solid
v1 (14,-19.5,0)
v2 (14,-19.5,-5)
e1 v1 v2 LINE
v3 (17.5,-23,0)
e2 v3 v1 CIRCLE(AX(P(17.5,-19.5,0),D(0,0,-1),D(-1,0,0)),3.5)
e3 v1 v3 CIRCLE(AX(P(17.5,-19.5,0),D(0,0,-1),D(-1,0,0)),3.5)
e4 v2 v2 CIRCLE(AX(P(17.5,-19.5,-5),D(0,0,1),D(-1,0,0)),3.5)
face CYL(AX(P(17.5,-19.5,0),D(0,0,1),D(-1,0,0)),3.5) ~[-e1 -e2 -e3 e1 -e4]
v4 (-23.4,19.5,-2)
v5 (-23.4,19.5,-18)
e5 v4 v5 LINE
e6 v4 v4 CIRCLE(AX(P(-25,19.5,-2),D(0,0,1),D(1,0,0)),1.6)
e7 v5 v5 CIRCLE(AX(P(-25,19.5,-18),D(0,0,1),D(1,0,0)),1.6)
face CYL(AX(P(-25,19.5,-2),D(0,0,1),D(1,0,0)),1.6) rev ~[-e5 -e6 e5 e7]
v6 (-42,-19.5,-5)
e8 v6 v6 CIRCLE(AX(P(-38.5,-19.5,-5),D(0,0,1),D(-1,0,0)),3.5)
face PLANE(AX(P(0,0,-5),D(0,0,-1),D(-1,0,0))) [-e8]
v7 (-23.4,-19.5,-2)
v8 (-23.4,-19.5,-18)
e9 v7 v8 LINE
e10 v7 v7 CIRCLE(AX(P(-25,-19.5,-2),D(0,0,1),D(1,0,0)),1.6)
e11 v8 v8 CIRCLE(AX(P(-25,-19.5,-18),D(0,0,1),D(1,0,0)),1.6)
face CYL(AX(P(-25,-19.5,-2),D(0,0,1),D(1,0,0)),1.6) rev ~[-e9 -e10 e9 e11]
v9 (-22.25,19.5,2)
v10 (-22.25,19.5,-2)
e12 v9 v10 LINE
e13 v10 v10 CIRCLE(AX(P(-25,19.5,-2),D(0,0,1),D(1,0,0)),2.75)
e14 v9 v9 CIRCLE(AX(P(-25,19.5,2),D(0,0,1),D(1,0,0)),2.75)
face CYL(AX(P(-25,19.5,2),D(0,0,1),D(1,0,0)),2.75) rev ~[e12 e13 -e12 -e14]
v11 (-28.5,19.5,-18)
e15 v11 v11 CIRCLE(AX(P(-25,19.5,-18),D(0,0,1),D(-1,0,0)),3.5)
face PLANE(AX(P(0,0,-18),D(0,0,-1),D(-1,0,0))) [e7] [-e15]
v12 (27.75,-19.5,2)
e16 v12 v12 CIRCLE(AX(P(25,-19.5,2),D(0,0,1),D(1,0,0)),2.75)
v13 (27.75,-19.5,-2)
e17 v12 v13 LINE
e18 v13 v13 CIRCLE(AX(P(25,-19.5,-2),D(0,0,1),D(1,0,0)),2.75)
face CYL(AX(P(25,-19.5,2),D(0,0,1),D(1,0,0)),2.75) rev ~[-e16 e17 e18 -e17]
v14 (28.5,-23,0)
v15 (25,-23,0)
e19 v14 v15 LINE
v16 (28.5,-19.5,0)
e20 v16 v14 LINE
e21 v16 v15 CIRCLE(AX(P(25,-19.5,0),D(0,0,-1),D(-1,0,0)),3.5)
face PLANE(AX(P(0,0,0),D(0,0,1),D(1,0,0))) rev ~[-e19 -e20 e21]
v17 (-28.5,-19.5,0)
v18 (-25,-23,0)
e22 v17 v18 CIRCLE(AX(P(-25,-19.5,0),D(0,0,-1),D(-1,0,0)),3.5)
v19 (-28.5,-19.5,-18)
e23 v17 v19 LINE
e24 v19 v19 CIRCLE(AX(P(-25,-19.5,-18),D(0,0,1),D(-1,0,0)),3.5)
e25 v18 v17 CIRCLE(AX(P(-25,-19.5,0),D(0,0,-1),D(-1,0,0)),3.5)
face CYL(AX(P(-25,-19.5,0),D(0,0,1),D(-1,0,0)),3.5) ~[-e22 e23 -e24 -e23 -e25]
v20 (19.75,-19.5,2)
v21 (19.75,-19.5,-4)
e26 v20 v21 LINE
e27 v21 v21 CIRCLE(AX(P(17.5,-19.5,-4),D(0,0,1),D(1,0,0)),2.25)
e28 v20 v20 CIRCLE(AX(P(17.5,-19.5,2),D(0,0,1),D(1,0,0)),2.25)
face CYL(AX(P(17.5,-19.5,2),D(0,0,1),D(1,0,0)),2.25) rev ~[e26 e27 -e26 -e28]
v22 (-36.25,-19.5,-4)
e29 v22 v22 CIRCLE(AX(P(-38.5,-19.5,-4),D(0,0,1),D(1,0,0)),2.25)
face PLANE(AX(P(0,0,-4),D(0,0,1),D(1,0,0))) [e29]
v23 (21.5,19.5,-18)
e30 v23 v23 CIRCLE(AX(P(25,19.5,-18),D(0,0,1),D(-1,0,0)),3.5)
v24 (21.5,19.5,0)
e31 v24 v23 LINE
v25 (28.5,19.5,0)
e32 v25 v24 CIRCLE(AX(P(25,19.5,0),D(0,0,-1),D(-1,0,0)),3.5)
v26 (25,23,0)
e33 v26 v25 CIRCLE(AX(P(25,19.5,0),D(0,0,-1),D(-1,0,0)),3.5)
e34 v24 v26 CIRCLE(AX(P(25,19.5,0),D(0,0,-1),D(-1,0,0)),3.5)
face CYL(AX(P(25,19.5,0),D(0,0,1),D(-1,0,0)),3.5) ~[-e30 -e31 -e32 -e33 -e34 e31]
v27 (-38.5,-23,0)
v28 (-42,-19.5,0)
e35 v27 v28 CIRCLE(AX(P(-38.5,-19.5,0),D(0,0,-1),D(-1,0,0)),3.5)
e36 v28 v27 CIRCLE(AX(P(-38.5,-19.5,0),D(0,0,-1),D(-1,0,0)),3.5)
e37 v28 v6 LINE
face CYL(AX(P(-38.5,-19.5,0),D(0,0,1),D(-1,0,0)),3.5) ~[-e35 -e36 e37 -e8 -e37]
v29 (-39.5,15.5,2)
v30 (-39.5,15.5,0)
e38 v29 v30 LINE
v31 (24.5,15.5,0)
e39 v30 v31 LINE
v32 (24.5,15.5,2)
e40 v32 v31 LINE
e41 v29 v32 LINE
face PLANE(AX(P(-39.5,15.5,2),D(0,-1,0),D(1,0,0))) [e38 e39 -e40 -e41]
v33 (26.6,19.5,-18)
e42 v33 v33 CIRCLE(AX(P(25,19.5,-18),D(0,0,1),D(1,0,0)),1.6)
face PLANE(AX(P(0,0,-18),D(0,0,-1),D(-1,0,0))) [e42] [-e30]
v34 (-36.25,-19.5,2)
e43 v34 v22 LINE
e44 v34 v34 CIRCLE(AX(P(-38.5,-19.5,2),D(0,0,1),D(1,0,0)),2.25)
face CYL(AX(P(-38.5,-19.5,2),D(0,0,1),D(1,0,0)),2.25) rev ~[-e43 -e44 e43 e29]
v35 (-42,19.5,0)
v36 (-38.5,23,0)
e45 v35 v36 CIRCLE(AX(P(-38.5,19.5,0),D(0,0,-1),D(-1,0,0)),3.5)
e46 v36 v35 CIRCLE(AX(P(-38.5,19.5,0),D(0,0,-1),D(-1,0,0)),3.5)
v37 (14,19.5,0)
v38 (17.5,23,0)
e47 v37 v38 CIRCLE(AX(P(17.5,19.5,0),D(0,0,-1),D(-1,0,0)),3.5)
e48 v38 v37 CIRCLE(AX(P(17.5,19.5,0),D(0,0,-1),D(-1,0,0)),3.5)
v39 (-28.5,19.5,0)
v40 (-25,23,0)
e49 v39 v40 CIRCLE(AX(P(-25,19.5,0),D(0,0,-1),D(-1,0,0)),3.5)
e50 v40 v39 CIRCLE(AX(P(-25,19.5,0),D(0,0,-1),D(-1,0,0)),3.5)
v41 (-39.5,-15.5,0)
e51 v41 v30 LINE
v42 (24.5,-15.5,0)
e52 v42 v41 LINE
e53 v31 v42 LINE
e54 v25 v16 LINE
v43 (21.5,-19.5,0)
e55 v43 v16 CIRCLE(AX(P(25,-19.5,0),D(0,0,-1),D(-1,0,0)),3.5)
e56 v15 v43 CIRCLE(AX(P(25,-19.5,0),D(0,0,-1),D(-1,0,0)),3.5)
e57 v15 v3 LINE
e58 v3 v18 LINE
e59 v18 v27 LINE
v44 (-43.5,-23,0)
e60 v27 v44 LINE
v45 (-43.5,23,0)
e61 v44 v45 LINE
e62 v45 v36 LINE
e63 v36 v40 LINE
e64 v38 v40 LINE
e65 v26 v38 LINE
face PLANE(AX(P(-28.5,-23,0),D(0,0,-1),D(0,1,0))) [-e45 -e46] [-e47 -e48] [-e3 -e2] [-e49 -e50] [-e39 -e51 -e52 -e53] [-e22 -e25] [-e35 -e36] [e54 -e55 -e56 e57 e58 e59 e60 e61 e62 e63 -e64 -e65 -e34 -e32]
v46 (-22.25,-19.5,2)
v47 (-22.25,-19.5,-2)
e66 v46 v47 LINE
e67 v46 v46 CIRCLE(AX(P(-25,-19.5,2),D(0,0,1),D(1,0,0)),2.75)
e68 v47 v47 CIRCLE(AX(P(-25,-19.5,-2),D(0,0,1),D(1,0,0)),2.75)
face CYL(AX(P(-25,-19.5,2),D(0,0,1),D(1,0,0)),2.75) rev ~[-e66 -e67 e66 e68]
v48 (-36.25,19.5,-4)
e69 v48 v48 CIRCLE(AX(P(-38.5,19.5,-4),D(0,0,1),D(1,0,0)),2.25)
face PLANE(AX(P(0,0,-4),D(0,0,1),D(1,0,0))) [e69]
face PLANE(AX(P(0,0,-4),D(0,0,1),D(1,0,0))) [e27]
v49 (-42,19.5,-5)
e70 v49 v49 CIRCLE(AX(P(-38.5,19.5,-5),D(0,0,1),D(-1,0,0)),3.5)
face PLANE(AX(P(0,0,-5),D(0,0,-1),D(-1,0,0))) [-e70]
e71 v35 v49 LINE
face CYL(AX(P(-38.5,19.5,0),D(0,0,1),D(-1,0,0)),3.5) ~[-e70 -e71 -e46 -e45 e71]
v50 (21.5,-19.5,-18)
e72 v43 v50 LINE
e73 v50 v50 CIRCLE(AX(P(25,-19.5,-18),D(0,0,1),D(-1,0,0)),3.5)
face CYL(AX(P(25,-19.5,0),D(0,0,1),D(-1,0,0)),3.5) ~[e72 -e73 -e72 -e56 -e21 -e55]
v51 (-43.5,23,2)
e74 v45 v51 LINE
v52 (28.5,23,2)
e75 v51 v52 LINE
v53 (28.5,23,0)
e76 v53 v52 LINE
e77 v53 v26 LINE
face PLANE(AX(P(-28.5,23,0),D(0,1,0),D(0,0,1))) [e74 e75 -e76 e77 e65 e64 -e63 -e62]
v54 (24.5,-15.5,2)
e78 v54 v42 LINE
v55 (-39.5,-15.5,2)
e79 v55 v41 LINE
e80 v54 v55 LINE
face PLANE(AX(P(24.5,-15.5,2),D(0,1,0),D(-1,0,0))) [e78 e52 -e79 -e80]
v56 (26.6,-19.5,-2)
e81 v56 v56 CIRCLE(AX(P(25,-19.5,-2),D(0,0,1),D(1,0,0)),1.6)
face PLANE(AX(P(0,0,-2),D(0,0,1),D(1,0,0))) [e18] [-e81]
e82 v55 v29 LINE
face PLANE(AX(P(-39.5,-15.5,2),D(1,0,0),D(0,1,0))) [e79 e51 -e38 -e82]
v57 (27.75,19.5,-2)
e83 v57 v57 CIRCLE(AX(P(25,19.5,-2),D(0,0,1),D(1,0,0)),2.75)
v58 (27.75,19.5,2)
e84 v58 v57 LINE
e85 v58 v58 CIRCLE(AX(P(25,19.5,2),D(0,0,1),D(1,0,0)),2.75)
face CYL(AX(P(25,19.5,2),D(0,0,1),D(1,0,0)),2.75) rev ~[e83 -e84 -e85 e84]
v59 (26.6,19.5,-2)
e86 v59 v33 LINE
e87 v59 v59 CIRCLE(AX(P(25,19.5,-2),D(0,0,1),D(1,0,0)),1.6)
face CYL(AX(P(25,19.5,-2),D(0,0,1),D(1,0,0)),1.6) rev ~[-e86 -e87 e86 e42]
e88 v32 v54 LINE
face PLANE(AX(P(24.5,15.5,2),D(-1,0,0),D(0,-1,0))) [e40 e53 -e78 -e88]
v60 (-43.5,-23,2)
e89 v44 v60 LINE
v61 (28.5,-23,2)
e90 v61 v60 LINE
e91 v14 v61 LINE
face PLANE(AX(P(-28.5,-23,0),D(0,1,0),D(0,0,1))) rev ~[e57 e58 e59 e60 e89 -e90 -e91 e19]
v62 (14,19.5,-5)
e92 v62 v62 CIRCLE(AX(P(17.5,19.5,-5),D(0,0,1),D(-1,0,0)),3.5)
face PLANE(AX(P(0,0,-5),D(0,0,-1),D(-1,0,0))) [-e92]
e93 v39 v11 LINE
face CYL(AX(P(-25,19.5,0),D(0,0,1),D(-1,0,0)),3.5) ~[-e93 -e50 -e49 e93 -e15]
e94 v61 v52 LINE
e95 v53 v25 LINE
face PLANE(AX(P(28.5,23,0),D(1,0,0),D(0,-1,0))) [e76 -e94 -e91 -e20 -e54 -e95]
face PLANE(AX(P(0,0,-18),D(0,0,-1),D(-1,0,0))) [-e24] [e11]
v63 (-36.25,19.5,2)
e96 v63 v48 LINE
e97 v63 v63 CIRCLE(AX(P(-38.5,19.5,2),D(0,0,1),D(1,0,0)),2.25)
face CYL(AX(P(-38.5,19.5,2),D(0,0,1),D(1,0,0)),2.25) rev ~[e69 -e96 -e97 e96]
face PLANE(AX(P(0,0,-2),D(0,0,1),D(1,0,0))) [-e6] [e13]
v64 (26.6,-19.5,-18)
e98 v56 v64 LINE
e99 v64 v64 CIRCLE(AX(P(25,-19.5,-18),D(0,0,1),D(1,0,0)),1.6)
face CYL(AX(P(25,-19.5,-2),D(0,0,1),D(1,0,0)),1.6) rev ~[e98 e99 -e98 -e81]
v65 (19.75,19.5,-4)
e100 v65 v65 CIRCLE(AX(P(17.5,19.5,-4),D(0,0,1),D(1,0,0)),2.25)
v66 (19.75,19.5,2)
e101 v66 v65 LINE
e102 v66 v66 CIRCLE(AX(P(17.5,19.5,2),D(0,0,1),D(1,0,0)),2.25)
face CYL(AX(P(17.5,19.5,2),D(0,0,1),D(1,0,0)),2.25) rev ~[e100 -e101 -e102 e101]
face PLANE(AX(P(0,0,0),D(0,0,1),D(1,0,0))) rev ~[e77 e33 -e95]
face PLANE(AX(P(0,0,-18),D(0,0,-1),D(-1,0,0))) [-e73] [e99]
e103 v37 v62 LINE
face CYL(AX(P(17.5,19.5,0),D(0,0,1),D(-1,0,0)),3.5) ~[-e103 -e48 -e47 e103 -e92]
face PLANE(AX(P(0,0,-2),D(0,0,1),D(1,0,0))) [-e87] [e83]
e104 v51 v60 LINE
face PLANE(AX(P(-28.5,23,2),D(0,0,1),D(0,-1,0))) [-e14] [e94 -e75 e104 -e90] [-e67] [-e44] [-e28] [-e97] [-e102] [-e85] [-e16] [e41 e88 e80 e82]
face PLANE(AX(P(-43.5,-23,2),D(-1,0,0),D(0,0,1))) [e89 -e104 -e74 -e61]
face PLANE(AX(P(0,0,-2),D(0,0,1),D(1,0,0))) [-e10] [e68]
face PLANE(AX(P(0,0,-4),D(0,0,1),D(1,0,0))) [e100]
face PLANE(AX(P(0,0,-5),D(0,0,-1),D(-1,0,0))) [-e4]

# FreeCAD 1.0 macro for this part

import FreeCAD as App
import Part
import Sketcher
from FreeCAD import Vector
Q = App.Units.Quantity


def add_polygon(sketch, points):
    """Adds a closed chain of lines whose ends are joined by coincident constraints."""
    first, n = sketch.GeometryCount, len(points)
    for a, b in zip(points, points[1:] + points[:1]):
        sketch.addGeometry(Part.LineSegment(App.Vector(*a, 0), App.Vector(*b, 0)), False)
    for i in range(n):
        sketch.addConstraint(Sketcher.Constraint("Coincident", first + i, 2, first + (i + 1) % n, 1))

doc = App.newDocument("Part")
body = doc.addObject("PartDesign::Body", "Body")

sketch1 = body.newObject("Sketcher::SketchObject", "Sketch")
sketch1.AttachmentSupport = (doc.getObject("XY_Plane"), [""])
sketch1.MapMode = "FlatFace"
add_polygon(sketch1, [(-28, 23), (-28, -23), (28, -23), (28, 23)])
sketch1.addConstraint([
    Sketcher.Constraint("Vertical", 0),
    Sketcher.Constraint("Horizontal", 1),
    Sketcher.Constraint("Vertical", 2),
    Sketcher.Constraint("Horizontal", 3),
    Sketcher.Constraint("Symmetric", 0, 2, 2, 2, -1, 1),
    Sketcher.Constraint("DistanceX", 1, 1, 1, 2, Q("57 mm")),
    Sketcher.Constraint("DistanceY", 0, 2, 0, 1, Q("46 mm")),
])
pad1 = body.newObject("PartDesign::Pad", "Pad")
pad1.Profile = sketch1
pad1.Length = 2

sketch2 = body.newObject("Sketcher::SketchObject", "Sketch001")
sketch2.AttachmentSupport = (doc.getObject("XY_Plane"), [""])
sketch2.MapMode = "FlatFace"
sketch2.addGeometry([
    Part.Circle(Vector(-25, -19.5, 0), Vector(0, 0, 1), 3.5),
    Part.Circle(Vector(-25, 19.5, 0), Vector(0, 0, 1), 3.5),
    Part.Circle(Vector(25, -19.5, 0), Vector(0, 0, 1), 3.5),
    Part.Circle(Vector(25, 19.5, 0), Vector(0, 0, 1), 3.5),
], False)
sketch2.addConstraint([
    Sketcher.Constraint("Equal", 0, 1),
    Sketcher.Constraint("Equal", 1, 2),
    Sketcher.Constraint("Equal", 2, 3),
    Sketcher.Constraint("Symmetric", 1, 3, 2, 3, -1, 1),
    Sketcher.Constraint("Symmetric", 0, 3, 3, 3, -1, 1),
    Sketcher.Constraint("Symmetric", 0, 3, 2, 3, -2),
    Sketcher.Constraint("Diameter", 0, Q("7 mm")),
    Sketcher.Constraint("DistanceX", 0, 3, -1, 1, Q("25 mm")),
    Sketcher.Constraint("DistanceY", 0, 3, 1, 3, Q("39 mm")),
])
pad2 = body.newObject("PartDesign::Pad", "Pad001")
pad2.Profile = sketch2
pad2.Length = 18
pad2.Reversed = True

sketch3 = body.newObject("Sketcher::SketchObject", "Sketch002")
sketch3.AttachmentSupport = (doc.getObject("XY_Plane"), [""])
sketch3.MapMode = "FlatFace"
sketch3.AttachmentOffset = App.Placement(Vector(0, 0, 2), App.Rotation())
sketch3.addGeometry([
    Part.Circle(Vector(-25, 19.5, 0), Vector(0, 0, 1), 2.8),
    Part.Circle(Vector(25, 19.5, 0), Vector(0, 0, 1), 2.8),
    Part.Circle(Vector(-25, -19.5, 0), Vector(0, 0, 1), 2.8),
    Part.Circle(Vector(25, -19.5, 0), Vector(0, 0, 1), 2.8),
], False)
sketch3.addConstraint([
    Sketcher.Constraint("Equal", 0, 1),
    Sketcher.Constraint("Equal", 1, 2),
    Sketcher.Constraint("Equal", 2, 3),
    Sketcher.Constraint("Symmetric", 1, 3, 2, 3, -1, 1),
    Sketcher.Constraint("Symmetric", 0, 3, 3, 3, -1, 1),
    Sketcher.Constraint("Symmetric", 0, 3, 1, 3, -2),
    Sketcher.Constraint("Diameter", 0, Q("5.5 mm")),
    Sketcher.Constraint("DistanceX", 0, 3, -1, 1, Q("25 mm")),
    Sketcher.Constraint("DistanceY", 2, 3, 0, 3, Q("39 mm")),
])
pocket1 = body.newObject("PartDesign::Pocket", "Pocket")
pocket1.Profile = sketch3
pocket1.Length = 4

sketch4 = body.newObject("Sketcher::SketchObject", "Sketch003")
sketch4.AttachmentSupport = (doc.getObject("XY_Plane"), [""])
sketch4.MapMode = "FlatFace"
sketch4.AttachmentOffset = App.Placement(Vector(0, 0, -2), App.Rotation())
sketch4.addGeometry([
    Part.Circle(Vector(-25, 19.5, 0), Vector(0, 0, 1), 1.6),
    Part.Circle(Vector(25, 19.5, 0), Vector(0, 0, 1), 1.6),
    Part.Circle(Vector(25, -19.5, 0), Vector(0, 0, 1), 1.6),
    Part.Circle(Vector(-25, -19.5, 0), Vector(0, 0, 1), 1.6),
], False)
sketch4.addConstraint([
    Sketcher.Constraint("Equal", 0, 1),
    Sketcher.Constraint("Equal", 1, 2),
    Sketcher.Constraint("Equal", 2, 3),
    Sketcher.Constraint("Symmetric", 0, 3, 2, 3, -1, 1),
    Sketcher.Constraint("Symmetric", 1, 3, 3, 3, -1, 1),
    Sketcher.Constraint("Symmetric", 0, 3, 1, 3, -2),
    Sketcher.Constraint("Diameter", 0, Q("3.2 mm")),
    Sketcher.Constraint("DistanceX", 0, 3, -1, 1, Q("25 mm")),
    Sketcher.Constraint("DistanceY", 2, 3, 1, 3, Q("39 mm")),
])
pocket2 = body.newObject("PartDesign::Pocket", "Pocket001")
pocket2.Profile = sketch4
pocket2.Length = 16

sketch5 = body.newObject("Sketcher::SketchObject", "Sketch004")
sketch5.AttachmentSupport = (doc.getObject("YZ_Plane"), [""])
sketch5.MapMode = "FlatFace"
sketch5.AttachmentOffset = App.Placement(Vector(0, 0, -28.5), App.Rotation())
add_polygon(sketch5, [(23, 0), (-23, 0), (-23, 2), (23, 2)])
sketch5.addConstraint([
    Sketcher.Constraint("Horizontal", 0),
    Sketcher.Constraint("Vertical", 1),
    Sketcher.Constraint("Horizontal", 2),
    Sketcher.Constraint("Vertical", 3),
    Sketcher.Constraint("Symmetric", 0, 2, 3, 2, -1, 1),
    Sketcher.Constraint("DistanceX", 0, 2, 0, 1, Q("46 mm")),
    Sketcher.Constraint("DistanceY", 1, 1, 1, 2, Q("2 mm")),
])
pad3 = body.newObject("PartDesign::Pad", "Pad002")
pad3.Profile = sketch5
pad3.Length = 15
pad3.Reversed = True

sketch6 = body.newObject("Sketcher::SketchObject", "Sketch005")
sketch6.AttachmentSupport = (doc.getObject("XY_Plane"), [""])
sketch6.MapMode = "FlatFace"
sketch6.addGeometry([
    Part.Circle(Vector(-38.5, -19.5, 0), Vector(0, 0, 1), 3.5),
    Part.Circle(Vector(-38.5, 19.5, 0), Vector(0, 0, 1), 3.5),
    Part.Circle(Vector(17.5, 19.5, 0), Vector(0, 0, 1), 3.5),
    Part.Circle(Vector(17.5, -19.5, 0), Vector(0, 0, 1), 3.5),
], False)
sketch6.addConstraint([
    Sketcher.Constraint("Equal", 0, 1),
    Sketcher.Constraint("Equal", 1, 2),
    Sketcher.Constraint("Equal", 2, 3),
    Sketcher.Constraint("Symmetric", 0, 3, 1, 3, -1),
    Sketcher.Constraint("Symmetric", 2, 3, 3, 3, -1),
    Sketcher.Constraint("Horizontal", 1, 3, 2, 3),
    Sketcher.Constraint("Diameter", 0, Q("7 mm")),
    Sketcher.Constraint("DistanceY", 0, 3, 1, 3, Q("39 mm")),
    Sketcher.Constraint("DistanceX", 1, 3, 2, 3, Q("56 mm")),
    Sketcher.Constraint("DistanceX", 0, 3, -1, 1, Q("38.5 mm")),
])
pad4 = body.newObject("PartDesign::Pad", "Pad003")
pad4.Profile = sketch6
pad4.Length = 5
pad4.Reversed = True

sketch7 = body.newObject("Sketcher::SketchObject", "Sketch006")
sketch7.AttachmentSupport = (doc.getObject("XY_Plane"), [""])
sketch7.MapMode = "FlatFace"
sketch7.AttachmentOffset = App.Placement(Vector(0, 0, 2), App.Rotation())
sketch7.addGeometry([
    Part.Circle(Vector(17.5, -19.5, 0), Vector(0, 0, 1), 2.2),
    Part.Circle(Vector(17.5, 19.5, 0), Vector(0, 0, 1), 2.2),
    Part.Circle(Vector(-38.5, -19.5, 0), Vector(0, 0, 1), 2.2),
    Part.Circle(Vector(-38.5, 19.5, 0), Vector(0, 0, 1), 2.2),
], False)
sketch7.addConstraint([
    Sketcher.Constraint("Equal", 0, 1),
    Sketcher.Constraint("Equal", 1, 2),
    Sketcher.Constraint("Equal", 2, 3),
    Sketcher.Constraint("Symmetric", 0, 3, 1, 3, -1),
    Sketcher.Constraint("Symmetric", 2, 3, 3, 3, -1),
    Sketcher.Constraint("Horizontal", 0, 3, 2, 3),
    Sketcher.Constraint("Diameter", 0, Q("4.5 mm")),
    Sketcher.Constraint("DistanceY", 0, 3, 1, 3, Q("39 mm")),
    Sketcher.Constraint("DistanceX", 2, 3, 0, 3, Q("56 mm")),
    Sketcher.Constraint("DistanceX", -1, 1, 0, 3, Q("17.5 mm")),
])
pocket3 = body.newObject("PartDesign::Pocket", "Pocket002")
pocket3.Profile = sketch7
pocket3.Length = 6

sketch8 = body.newObject("Sketcher::SketchObject", "Sketch007")
sketch8.AttachmentSupport = (doc.getObject("XY_Plane"), [""])
sketch8.MapMode = "FlatFace"
sketch8.AttachmentOffset = App.Placement(Vector(0, 0, 2), App.Rotation())
add_polygon(sketch8, [(24, 16), (-40, 16), (-40, -16), (24, -16)])
sketch8.addConstraint([
    Sketcher.Constraint("Horizontal", 0),
    Sketcher.Constraint("Vertical", 1),
    Sketcher.Constraint("Horizontal", 2),
    Sketcher.Constraint("Vertical", 3),
    Sketcher.Constraint("DistanceX", 0, 2, 0, 1, Q("64 mm")),
    Sketcher.Constraint("DistanceY", 1, 2, 1, 1, Q("31 mm")),
    Sketcher.Constraint("DistanceX", 0, 2, -1, 1, Q("39.5 mm")),
    Sketcher.Constraint("DistanceY", -1, 1, 0, 2, Q("15.5 mm")),
])
pocket4 = body.newObject("PartDesign::Pocket", "Pocket003")
pocket4.Profile = sketch8
pocket4.Length = 2

doc.recompute()
